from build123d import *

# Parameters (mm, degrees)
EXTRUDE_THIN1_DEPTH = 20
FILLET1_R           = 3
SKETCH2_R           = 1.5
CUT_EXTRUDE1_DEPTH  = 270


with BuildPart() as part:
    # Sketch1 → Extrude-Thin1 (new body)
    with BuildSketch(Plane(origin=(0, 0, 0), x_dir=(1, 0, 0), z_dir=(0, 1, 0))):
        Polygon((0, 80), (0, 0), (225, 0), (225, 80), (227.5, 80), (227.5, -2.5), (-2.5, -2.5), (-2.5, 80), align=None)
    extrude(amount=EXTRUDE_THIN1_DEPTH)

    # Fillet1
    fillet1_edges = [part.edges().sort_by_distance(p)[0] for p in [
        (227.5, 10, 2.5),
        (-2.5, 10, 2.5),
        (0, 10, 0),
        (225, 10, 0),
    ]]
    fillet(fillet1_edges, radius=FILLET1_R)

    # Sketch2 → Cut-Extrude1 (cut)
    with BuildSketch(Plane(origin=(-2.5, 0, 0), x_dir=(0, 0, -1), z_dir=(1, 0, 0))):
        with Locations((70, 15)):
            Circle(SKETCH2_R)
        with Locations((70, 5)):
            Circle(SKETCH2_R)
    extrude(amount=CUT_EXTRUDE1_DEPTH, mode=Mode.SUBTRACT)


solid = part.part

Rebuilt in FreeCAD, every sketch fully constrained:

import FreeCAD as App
import Part
import Sketcher
from FreeCAD import Vector
Q = App.Units.Quantity


def edges_at(feature, points):
    """Names of the edges that pass closest to the given points."""
    edges = feature.Shape.Edges
    near = lambda p: min(range(len(edges)), key=lambda i: edges[i].distToShape(Part.Vertex(*p))[0])
    return sorted({f"Edge{near(p) + 1}" for p in points})


def add_polygon(sketch, points):
    """Adds a closed chain of lines whose ends are joined by coincident constraints."""
    first, n = sketch.GeometryCount, len(points)
    for a, b in zip(points, points[1:] + points[:1]):
        sketch.addGeometry(Part.LineSegment(App.Vector(*a, 0), App.Vector(*b, 0)), False)
    for i in range(n):
        sketch.addConstraint(Sketcher.Constraint("Coincident", first + i, 2, first + (i + 1) % n, 1))

doc = App.newDocument("Part")
body = doc.addObject("PartDesign::Body", "Body")

# Sketch on XZ plane
sketch1 = doc.addObject("Sketcher::SketchObject", "Sketch")
body.addObject(sketch1)
sketch1.AttachmentSupport = (doc.XZ_Plane, [""])
sketch1.MapMode = "FlatFace"
add_polygon(sketch1, [(0, 0), (0, -80), (-2.5, -80), (-2.5, 2.5), (227.5, 2.5), (227.5, -80), (225, -80), (225, 0)])  # lines 0-7
sketch1.addConstraint([
    Sketcher.Constraint("Vertical", 0),
    Sketcher.Constraint("Horizontal", 1),
    Sketcher.Constraint("Vertical", 2),
    Sketcher.Constraint("Horizontal", 3),
    Sketcher.Constraint("Vertical", 4),
    Sketcher.Constraint("Horizontal", 5),
    Sketcher.Constraint("Vertical", 6),
    Sketcher.Constraint("Horizontal", 7),
    Sketcher.Constraint("Coincident", 7, 2, -1, 1),
    Sketcher.Constraint("Horizontal", 1, 2, 4, 2),
    Sketcher.Constraint("Equal", 1, 5),
    Sketcher.Constraint("DistanceX", 3, 1, 3, 2, Q("230 mm")),
    Sketcher.Constraint("DistanceX", 7, 2, 7, 1, Q("225 mm")),
    Sketcher.Constraint("DistanceY", 0, 2, 0, 1, Q("80 mm")),
    Sketcher.Constraint("DistanceY", 2, 1, 2, 2, Q("82.5 mm")),
])
pad1 = doc.addObject("PartDesign::Pad", "Pad")
body.addObject(pad1)
pad1.Profile = sketch1
pad1.Length = 20
pad1.Reversed = True
doc.recompute()

fillet = doc.addObject("PartDesign::Fillet", "Fillet")
body.addObject(fillet)
fillet.Base = (pad1, edges_at(pad1, [
    (227.5, 10, 2.5),
    (-2.5, 10, 2.5),
    (0, 10, 0),
    (225, 10, 0),
]))
fillet.Radius = 3

# Sketch on YZ plane
sketch2 = doc.addObject("Sketcher::SketchObject", "Sketch001")
body.addObject(sketch2)
sketch2.AttachmentSupport = (doc.YZ_Plane, [""])
sketch2.MapMode = "FlatFace"
sketch2.AttachmentOffset = App.Placement(Vector(0, 0, -2.5), App.Rotation())
sketch2.addGeometry([
    Part.Circle(Vector(15, -70, 0), Vector(0, 0, 1), 1.5),
    Part.Circle(Vector(5, -70, 0), Vector(0, 0, 1), 1.5),
], False)
sketch2.addConstraint([
    Sketcher.Constraint("Equal", 0, 1),
    Sketcher.Constraint("Horizontal", 0, 3, 1, 3),
    Sketcher.Constraint("Diameter", 0, Q("3 mm")),
    Sketcher.Constraint("DistanceX", -1, 1, 0, 3, Q("15 mm")),
    Sketcher.Constraint("DistanceY", 0, 3, -1, 1, Q("70 mm")),
    Sketcher.Constraint("DistanceX", -1, 1, 1, 3, Q("5 mm")),
])
pocket1 = doc.addObject("PartDesign::Pocket", "Pocket")
body.addObject(pocket1)
pocket1.Profile = sketch2
pocket1.Length = 270
pocket1.Reversed = True

doc.recompute()
